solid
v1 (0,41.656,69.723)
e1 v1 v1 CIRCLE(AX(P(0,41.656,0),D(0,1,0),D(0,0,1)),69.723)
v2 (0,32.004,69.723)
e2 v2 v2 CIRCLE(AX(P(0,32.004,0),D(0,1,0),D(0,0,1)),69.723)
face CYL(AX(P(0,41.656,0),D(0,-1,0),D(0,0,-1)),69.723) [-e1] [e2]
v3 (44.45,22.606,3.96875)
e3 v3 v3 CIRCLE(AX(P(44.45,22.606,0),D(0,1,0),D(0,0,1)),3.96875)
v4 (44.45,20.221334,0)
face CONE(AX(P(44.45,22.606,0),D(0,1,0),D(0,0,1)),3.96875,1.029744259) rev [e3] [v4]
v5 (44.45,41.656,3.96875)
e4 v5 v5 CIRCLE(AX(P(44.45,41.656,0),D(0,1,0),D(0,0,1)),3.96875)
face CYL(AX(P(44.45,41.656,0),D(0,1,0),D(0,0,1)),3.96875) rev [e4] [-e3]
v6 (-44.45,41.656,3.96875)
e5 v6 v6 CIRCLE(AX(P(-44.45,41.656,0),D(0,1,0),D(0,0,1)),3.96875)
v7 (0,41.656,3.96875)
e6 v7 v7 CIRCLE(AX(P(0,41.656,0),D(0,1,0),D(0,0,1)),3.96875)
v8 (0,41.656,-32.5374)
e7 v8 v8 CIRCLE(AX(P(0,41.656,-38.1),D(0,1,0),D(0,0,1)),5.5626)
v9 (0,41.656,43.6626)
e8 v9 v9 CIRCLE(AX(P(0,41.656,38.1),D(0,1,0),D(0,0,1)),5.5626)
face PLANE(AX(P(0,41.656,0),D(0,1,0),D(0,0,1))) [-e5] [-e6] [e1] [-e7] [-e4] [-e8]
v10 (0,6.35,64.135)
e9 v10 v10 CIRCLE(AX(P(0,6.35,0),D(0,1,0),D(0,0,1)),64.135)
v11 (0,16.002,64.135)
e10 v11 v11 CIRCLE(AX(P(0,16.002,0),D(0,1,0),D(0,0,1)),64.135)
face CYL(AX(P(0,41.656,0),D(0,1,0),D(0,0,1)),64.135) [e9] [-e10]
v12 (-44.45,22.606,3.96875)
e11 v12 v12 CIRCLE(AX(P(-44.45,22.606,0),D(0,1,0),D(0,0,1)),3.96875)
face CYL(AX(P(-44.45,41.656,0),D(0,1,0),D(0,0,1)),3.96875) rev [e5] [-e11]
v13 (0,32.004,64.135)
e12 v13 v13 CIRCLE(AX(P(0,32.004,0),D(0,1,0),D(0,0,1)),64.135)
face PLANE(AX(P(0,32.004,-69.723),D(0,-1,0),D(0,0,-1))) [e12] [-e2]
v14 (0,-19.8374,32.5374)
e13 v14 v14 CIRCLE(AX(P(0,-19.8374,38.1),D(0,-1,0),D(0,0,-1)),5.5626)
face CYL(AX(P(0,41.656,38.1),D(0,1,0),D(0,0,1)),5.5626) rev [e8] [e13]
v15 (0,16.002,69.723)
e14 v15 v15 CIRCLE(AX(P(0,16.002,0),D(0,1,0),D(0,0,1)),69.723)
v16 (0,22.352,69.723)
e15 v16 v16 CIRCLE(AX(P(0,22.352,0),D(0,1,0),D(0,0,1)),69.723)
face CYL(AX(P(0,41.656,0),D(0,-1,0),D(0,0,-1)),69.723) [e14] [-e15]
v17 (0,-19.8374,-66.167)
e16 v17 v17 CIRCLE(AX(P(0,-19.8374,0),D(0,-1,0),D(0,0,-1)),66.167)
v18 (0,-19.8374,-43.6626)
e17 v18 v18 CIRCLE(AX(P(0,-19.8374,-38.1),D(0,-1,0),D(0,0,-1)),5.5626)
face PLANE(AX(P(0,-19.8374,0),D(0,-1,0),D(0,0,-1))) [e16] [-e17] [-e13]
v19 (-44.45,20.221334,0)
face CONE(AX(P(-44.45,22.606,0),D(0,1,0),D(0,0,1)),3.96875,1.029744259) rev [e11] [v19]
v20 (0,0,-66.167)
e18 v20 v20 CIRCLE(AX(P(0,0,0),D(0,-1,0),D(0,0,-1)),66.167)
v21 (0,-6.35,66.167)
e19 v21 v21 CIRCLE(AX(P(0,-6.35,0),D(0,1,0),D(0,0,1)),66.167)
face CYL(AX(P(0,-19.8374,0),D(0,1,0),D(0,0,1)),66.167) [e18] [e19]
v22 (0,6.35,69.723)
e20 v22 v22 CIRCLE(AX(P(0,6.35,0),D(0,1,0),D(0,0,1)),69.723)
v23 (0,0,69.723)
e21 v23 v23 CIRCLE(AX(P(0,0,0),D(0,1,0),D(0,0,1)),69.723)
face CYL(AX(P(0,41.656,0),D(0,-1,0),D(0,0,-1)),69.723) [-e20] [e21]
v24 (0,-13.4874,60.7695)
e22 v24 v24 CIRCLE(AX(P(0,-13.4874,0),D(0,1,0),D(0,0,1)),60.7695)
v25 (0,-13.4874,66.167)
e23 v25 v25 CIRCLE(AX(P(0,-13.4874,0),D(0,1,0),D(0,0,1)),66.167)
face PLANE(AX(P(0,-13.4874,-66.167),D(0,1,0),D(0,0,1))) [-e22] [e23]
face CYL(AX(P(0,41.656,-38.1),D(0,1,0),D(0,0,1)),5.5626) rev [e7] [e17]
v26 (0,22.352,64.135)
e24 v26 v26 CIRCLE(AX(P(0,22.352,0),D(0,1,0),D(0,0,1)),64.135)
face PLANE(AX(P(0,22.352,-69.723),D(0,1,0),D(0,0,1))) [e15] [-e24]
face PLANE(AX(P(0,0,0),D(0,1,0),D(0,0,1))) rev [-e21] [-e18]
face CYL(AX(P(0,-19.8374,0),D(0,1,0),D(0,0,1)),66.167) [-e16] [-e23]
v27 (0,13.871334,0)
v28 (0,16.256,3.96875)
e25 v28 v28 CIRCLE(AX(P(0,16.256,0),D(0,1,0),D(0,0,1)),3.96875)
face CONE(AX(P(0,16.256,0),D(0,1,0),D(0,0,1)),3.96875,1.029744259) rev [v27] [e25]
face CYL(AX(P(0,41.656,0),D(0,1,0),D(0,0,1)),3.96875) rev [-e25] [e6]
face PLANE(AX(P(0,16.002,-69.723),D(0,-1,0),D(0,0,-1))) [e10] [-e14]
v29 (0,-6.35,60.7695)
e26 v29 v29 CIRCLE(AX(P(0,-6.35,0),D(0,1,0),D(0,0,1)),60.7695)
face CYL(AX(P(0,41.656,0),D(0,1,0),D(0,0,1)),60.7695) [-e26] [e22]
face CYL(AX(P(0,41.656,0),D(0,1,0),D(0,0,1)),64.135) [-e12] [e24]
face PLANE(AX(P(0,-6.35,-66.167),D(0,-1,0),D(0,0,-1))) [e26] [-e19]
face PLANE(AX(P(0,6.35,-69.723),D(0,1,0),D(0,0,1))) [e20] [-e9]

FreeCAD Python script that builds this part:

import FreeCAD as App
import Part
import Sketcher
from FreeCAD import Vector
Q = App.Units.Quantity


def add_polygon(sketch, points):
    """Adds a closed chain of lines whose ends are joined by coincident constraints."""
    first, n = sketch.GeometryCount, len(points)
    for a, b in zip(points, points[1:] + points[:1]):
        sketch.addGeometry(Part.LineSegment(App.Vector(*a, 0), App.Vector(*b, 0)), False)
    for i in range(n):
        sketch.addConstraint(Sketcher.Constraint("Coincident", first + i, 2, first + (i + 1) % n, 1))

doc = App.newDocument("Part")
body = doc.addObject("PartDesign::Body", "Body")

sketch1 = body.newObject("Sketcher::SketchObject", "Sketch")
sketch1.AttachmentSupport = (doc.getObject("XZ_Plane"), [""])
sketch1.MapMode = "FlatFace"
sketch1.addGeometry(Part.Circle(Vector(0, 0, 0), Vector(0, 0, 1), 69.723), False)
sketch1.addConstraint(Sketcher.Constraint("Coincident", 0, 3, -1, 1))
sketch1.addConstraint(Sketcher.Constraint("Diameter", 0, Q("5.49 in")))
pad1 = body.newObject("PartDesign::Pad", "Pad")
pad1.Profile = sketch1
pad1.Length = Q("1.64 in")
pad1.Reversed = True

sketch2 = body.newObject("Sketcher::SketchObject", "Sketch001")
sketch2.AttachmentSupport = (doc.getObject("YZ_Plane"), [""])
sketch2.MapMode = "FlatFace"
add_polygon(sketch2, [(32.004, -64.135), (22.352, -64.135), (22.352, -69.723), (32.004, -69.723)])
add_polygon(sketch2, [(16.002, -64.135), (6.35, -64.135), (6.35, -69.723), (16.002, -69.723)])
sketch2.addConstraint(Sketcher.Constraint("Horizontal", 0))
sketch2.addConstraint(Sketcher.Constraint("Vertical", 1))
sketch2.addConstraint(Sketcher.Constraint("Horizontal", 2))
sketch2.addConstraint(Sketcher.Constraint("Vertical", 3))
sketch2.addConstraint(Sketcher.Constraint("Horizontal", 4))
sketch2.addConstraint(Sketcher.Constraint("Vertical", 5))
sketch2.addConstraint(Sketcher.Constraint("Horizontal", 6))
sketch2.addConstraint(Sketcher.Constraint("Vertical", 7))
sketch2.addConstraint(Sketcher.Constraint("Horizontal", 3, 2, 4, 2))
sketch2.addConstraint(Sketcher.Constraint("Horizontal", 2, 2, 5, 2))
sketch2.addConstraint(Sketcher.Constraint("Equal", 2, 4))
sketch2.addConstraint(Sketcher.Constraint("DistanceX", 0, 2, 0, 1, Q("0.38 in")))
sketch2.addConstraint(Sketcher.Constraint("DistanceY", 1, 2, 1, 1, Q("0.22 in")))
sketch2.addConstraint(Sketcher.Constraint("DistanceX", -1, 1, 0, 2, Q("0.88 in")))
sketch2.addConstraint(Sketcher.Constraint("DistanceX", -1, 1, 4, 2, Q("0.25 in")))
sketch2.addConstraint(Sketcher.Constraint("DistanceY", 0, 2, -1, 1, Q("2.525 in")))
groove = body.newObject("PartDesign::Groove", "Groove")
groove.Profile = sketch2
groove.ReferenceAxis = (sketch2, ["H_Axis"])
groove.Angle = 360

sketch3 = body.newObject("Sketcher::SketchObject", "Sketch002")
sketch3.AttachmentSupport = (doc.getObject("XZ_Plane"), [""])
sketch3.MapMode = "FlatFace"
sketch3.addGeometry(Part.Circle(Vector(0, 0, 0), Vector(0, 0, 1), 66.167), False)
sketch3.addConstraint(Sketcher.Constraint("Coincident", 0, 3, -1, 1))
sketch3.addConstraint(Sketcher.Constraint("Diameter", 0, Q("5.21 in")))
pad2 = body.newObject("PartDesign::Pad", "Pad001")
pad2.Profile = sketch3
pad2.Length = Q("0.781 in")

sketch4 = body.newObject("Sketcher::SketchObject", "Sketch003")
sketch4.AttachmentSupport = (doc.getObject("YZ_Plane"), [""])
sketch4.MapMode = "FlatFace"
add_polygon(sketch4, [(-6.35, -60.7695), (-13.4874, -60.7695), (-13.4874, -66.167), (-6.35, -66.167)])
sketch4.addConstraint(Sketcher.Constraint("Horizontal", 0))
sketch4.addConstraint(Sketcher.Constraint("Vertical", 1))
sketch4.addConstraint(Sketcher.Constraint("Horizontal", 2))
sketch4.addConstraint(Sketcher.Constraint("Vertical", 3))
sketch4.addConstraint(Sketcher.Constraint("DistanceX", 0, 2, 0, 1, Q("0.281 in")))
sketch4.addConstraint(Sketcher.Constraint("DistanceX", 2, 2, -1, 1, Q("0.25 in")))
sketch4.addConstraint(Sketcher.Constraint("DistanceY", 1, 2, 1, 1, Q("0.2125 in")))
sketch4.addConstraint(Sketcher.Constraint("DistanceY", 1, 2, -1, 1, Q("2.605 in")))
groove2 = body.newObject("PartDesign::Groove", "Groove001")
groove2.Profile = sketch4
groove2.ReferenceAxis = (sketch4, ["H_Axis"])
groove2.Angle = 360

sketch5 = body.newObject("Sketcher::SketchObject", "Sketch004")
sketch5.AttachmentSupport = (doc.getObject("XZ_Plane"), [""])
sketch5.MapMode = "FlatFace"
sketch5.AttachmentOffset = App.Placement(Vector(0, 0, -1.64 * 25.4), App.Rotation())
sketch5.addGeometry(Part.Circle(Vector(0, -38.1, 0), Vector(0, 0, 1), 5.5626), False)
sketch5.addConstraint(Sketcher.Constraint("PointOnObject", 0, 3, -2))
sketch5.addConstraint(Sketcher.Constraint("Diameter", 0, Q("0.438 in")))
sketch5.addConstraint(Sketcher.Constraint("DistanceY", 0, 3, -1, 1, Q("1.5 in")))
doc.recompute()
hole = body.newObject("PartDesign::Hole", "Hole")
hole.Profile = sketch5
hole.ThreadType = "None"
hole.Diameter = Q("0.438 in")
hole.DepthType = "ThroughAll"
hole.Reversed = True
doc.recompute()

mirrored = body.newObject("PartDesign::Mirrored", "Mirrored")
mirrored.Originals = [hole]
mirrored.MirrorPlane = (doc.getObject("XY_Plane"), [""])
body.Tip = mirrored

sketch6 = body.newObject("Sketcher::SketchObject", "Sketch005")
sketch6.AttachmentSupport = (doc.getObject("XZ_Plane"), [""])
sketch6.MapMode = "FlatFace"
sketch6.AttachmentOffset = App.Placement(Vector(0, 0, -1.64 * 25.4), App.Rotation())
sketch6.addGeometry(Part.Circle(Vector(0, 0, 0), Vector(0, 0, 1), 3.96875), False)
sketch6.addConstraint(Sketcher.Constraint("Coincident", 0, 3, -1, 1))
sketch6.addConstraint(Sketcher.Constraint("Diameter", 0, Q("0.3125 in")))
doc.recompute()
hole2 = body.newObject("PartDesign::Hole", "Hole001")
hole2.Profile = sketch6
hole2.ThreadType = "None"
hole2.Diameter = Q("0.3125 in")
hole2.DepthType = "Dimension"
hole2.Depth = Q("1 in")
hole2.DrillPoint = "Angled"
hole2.DrillPointAngle = 118
hole2.Reversed = True

sketch7 = body.newObject("Sketcher::SketchObject", "Sketch006")
sketch7.AttachmentSupport = (doc.getObject("XZ_Plane"), [""])
sketch7.MapMode = "FlatFace"
sketch7.AttachmentOffset = App.Placement(Vector(0, 0, -1.64 * 25.4), App.Rotation())
sketch7.addGeometry(Part.Circle(Vector(0, 38.1, 0), Vector(0, 0, 1), 5.5626), False)
sketch7.addGeometry(Part.Circle(Vector(0, -38.1, 0), Vector(0, 0, 1), 5.5626), False)
sketch7.addConstraint(Sketcher.Constraint("Equal", 0, 1))
sketch7.addConstraint(Sketcher.Constraint("Symmetric", 0, 3, 1, 3, -1, 1))
sketch7.addConstraint(Sketcher.Constraint("PointOnObject", 0, 3, -2))
sketch7.addConstraint(Sketcher.Constraint("Diameter", 0, Q("0.438 in")))
sketch7.addConstraint(Sketcher.Constraint("DistanceY", 1, 3, 0, 3, Q("3 in")))
doc.recompute()
hole3 = body.newObject("PartDesign::Hole", "Hole002")
hole3.Profile = sketch7
hole3.ThreadType = "None"
hole3.Diameter = Q("0.438 in")
hole3.DepthType = "Dimension"
hole3.Depth = Q("2.421 in")
hole3.DrillPoint = "Flat"
hole3.Reversed = True

sketch8 = body.newObject("Sketcher::SketchObject", "Sketch007")
sketch8.AttachmentSupport = (doc.getObject("XZ_Plane"), [""])
sketch8.MapMode = "FlatFace"
sketch8.AttachmentOffset = App.Placement(Vector(0, 0, -1.64 * 25.4), App.Rotation())
sketch8.addGeometry(Part.Circle(Vector(-44.45, 0, 0), Vector(0, 0, 1), 3.96875), False)
sketch8.addGeometry(Part.Circle(Vector(44.45, 0, 0), Vector(0, 0, 1), 3.96875), False)
sketch8.addConstraint(Sketcher.Constraint("Equal", 0, 1))
sketch8.addConstraint(Sketcher.Constraint("Symmetric", 0, 3, 1, 3, -1, 1))
sketch8.addConstraint(Sketcher.Constraint("PointOnObject", 0, 3, -1))
sketch8.addConstraint(Sketcher.Constraint("Diameter", 0, Q("0.3125 in")))
sketch8.addConstraint(Sketcher.Constraint("DistanceX", 0, 3, 1, 3, Q("3.5 in")))
doc.recompute()
hole4 = body.newObject("PartDesign::Hole", "Hole003")
hole4.Profile = sketch8
hole4.ThreadType = "None"
hole4.Diameter = Q("0.3125 in")
hole4.DepthType = "Dimension"
hole4.Depth = Q("0.75 in")
hole4.DrillPoint = "Angled"
hole4.DrillPointAngle = 118
hole4.Reversed = True

doc.recompute()
